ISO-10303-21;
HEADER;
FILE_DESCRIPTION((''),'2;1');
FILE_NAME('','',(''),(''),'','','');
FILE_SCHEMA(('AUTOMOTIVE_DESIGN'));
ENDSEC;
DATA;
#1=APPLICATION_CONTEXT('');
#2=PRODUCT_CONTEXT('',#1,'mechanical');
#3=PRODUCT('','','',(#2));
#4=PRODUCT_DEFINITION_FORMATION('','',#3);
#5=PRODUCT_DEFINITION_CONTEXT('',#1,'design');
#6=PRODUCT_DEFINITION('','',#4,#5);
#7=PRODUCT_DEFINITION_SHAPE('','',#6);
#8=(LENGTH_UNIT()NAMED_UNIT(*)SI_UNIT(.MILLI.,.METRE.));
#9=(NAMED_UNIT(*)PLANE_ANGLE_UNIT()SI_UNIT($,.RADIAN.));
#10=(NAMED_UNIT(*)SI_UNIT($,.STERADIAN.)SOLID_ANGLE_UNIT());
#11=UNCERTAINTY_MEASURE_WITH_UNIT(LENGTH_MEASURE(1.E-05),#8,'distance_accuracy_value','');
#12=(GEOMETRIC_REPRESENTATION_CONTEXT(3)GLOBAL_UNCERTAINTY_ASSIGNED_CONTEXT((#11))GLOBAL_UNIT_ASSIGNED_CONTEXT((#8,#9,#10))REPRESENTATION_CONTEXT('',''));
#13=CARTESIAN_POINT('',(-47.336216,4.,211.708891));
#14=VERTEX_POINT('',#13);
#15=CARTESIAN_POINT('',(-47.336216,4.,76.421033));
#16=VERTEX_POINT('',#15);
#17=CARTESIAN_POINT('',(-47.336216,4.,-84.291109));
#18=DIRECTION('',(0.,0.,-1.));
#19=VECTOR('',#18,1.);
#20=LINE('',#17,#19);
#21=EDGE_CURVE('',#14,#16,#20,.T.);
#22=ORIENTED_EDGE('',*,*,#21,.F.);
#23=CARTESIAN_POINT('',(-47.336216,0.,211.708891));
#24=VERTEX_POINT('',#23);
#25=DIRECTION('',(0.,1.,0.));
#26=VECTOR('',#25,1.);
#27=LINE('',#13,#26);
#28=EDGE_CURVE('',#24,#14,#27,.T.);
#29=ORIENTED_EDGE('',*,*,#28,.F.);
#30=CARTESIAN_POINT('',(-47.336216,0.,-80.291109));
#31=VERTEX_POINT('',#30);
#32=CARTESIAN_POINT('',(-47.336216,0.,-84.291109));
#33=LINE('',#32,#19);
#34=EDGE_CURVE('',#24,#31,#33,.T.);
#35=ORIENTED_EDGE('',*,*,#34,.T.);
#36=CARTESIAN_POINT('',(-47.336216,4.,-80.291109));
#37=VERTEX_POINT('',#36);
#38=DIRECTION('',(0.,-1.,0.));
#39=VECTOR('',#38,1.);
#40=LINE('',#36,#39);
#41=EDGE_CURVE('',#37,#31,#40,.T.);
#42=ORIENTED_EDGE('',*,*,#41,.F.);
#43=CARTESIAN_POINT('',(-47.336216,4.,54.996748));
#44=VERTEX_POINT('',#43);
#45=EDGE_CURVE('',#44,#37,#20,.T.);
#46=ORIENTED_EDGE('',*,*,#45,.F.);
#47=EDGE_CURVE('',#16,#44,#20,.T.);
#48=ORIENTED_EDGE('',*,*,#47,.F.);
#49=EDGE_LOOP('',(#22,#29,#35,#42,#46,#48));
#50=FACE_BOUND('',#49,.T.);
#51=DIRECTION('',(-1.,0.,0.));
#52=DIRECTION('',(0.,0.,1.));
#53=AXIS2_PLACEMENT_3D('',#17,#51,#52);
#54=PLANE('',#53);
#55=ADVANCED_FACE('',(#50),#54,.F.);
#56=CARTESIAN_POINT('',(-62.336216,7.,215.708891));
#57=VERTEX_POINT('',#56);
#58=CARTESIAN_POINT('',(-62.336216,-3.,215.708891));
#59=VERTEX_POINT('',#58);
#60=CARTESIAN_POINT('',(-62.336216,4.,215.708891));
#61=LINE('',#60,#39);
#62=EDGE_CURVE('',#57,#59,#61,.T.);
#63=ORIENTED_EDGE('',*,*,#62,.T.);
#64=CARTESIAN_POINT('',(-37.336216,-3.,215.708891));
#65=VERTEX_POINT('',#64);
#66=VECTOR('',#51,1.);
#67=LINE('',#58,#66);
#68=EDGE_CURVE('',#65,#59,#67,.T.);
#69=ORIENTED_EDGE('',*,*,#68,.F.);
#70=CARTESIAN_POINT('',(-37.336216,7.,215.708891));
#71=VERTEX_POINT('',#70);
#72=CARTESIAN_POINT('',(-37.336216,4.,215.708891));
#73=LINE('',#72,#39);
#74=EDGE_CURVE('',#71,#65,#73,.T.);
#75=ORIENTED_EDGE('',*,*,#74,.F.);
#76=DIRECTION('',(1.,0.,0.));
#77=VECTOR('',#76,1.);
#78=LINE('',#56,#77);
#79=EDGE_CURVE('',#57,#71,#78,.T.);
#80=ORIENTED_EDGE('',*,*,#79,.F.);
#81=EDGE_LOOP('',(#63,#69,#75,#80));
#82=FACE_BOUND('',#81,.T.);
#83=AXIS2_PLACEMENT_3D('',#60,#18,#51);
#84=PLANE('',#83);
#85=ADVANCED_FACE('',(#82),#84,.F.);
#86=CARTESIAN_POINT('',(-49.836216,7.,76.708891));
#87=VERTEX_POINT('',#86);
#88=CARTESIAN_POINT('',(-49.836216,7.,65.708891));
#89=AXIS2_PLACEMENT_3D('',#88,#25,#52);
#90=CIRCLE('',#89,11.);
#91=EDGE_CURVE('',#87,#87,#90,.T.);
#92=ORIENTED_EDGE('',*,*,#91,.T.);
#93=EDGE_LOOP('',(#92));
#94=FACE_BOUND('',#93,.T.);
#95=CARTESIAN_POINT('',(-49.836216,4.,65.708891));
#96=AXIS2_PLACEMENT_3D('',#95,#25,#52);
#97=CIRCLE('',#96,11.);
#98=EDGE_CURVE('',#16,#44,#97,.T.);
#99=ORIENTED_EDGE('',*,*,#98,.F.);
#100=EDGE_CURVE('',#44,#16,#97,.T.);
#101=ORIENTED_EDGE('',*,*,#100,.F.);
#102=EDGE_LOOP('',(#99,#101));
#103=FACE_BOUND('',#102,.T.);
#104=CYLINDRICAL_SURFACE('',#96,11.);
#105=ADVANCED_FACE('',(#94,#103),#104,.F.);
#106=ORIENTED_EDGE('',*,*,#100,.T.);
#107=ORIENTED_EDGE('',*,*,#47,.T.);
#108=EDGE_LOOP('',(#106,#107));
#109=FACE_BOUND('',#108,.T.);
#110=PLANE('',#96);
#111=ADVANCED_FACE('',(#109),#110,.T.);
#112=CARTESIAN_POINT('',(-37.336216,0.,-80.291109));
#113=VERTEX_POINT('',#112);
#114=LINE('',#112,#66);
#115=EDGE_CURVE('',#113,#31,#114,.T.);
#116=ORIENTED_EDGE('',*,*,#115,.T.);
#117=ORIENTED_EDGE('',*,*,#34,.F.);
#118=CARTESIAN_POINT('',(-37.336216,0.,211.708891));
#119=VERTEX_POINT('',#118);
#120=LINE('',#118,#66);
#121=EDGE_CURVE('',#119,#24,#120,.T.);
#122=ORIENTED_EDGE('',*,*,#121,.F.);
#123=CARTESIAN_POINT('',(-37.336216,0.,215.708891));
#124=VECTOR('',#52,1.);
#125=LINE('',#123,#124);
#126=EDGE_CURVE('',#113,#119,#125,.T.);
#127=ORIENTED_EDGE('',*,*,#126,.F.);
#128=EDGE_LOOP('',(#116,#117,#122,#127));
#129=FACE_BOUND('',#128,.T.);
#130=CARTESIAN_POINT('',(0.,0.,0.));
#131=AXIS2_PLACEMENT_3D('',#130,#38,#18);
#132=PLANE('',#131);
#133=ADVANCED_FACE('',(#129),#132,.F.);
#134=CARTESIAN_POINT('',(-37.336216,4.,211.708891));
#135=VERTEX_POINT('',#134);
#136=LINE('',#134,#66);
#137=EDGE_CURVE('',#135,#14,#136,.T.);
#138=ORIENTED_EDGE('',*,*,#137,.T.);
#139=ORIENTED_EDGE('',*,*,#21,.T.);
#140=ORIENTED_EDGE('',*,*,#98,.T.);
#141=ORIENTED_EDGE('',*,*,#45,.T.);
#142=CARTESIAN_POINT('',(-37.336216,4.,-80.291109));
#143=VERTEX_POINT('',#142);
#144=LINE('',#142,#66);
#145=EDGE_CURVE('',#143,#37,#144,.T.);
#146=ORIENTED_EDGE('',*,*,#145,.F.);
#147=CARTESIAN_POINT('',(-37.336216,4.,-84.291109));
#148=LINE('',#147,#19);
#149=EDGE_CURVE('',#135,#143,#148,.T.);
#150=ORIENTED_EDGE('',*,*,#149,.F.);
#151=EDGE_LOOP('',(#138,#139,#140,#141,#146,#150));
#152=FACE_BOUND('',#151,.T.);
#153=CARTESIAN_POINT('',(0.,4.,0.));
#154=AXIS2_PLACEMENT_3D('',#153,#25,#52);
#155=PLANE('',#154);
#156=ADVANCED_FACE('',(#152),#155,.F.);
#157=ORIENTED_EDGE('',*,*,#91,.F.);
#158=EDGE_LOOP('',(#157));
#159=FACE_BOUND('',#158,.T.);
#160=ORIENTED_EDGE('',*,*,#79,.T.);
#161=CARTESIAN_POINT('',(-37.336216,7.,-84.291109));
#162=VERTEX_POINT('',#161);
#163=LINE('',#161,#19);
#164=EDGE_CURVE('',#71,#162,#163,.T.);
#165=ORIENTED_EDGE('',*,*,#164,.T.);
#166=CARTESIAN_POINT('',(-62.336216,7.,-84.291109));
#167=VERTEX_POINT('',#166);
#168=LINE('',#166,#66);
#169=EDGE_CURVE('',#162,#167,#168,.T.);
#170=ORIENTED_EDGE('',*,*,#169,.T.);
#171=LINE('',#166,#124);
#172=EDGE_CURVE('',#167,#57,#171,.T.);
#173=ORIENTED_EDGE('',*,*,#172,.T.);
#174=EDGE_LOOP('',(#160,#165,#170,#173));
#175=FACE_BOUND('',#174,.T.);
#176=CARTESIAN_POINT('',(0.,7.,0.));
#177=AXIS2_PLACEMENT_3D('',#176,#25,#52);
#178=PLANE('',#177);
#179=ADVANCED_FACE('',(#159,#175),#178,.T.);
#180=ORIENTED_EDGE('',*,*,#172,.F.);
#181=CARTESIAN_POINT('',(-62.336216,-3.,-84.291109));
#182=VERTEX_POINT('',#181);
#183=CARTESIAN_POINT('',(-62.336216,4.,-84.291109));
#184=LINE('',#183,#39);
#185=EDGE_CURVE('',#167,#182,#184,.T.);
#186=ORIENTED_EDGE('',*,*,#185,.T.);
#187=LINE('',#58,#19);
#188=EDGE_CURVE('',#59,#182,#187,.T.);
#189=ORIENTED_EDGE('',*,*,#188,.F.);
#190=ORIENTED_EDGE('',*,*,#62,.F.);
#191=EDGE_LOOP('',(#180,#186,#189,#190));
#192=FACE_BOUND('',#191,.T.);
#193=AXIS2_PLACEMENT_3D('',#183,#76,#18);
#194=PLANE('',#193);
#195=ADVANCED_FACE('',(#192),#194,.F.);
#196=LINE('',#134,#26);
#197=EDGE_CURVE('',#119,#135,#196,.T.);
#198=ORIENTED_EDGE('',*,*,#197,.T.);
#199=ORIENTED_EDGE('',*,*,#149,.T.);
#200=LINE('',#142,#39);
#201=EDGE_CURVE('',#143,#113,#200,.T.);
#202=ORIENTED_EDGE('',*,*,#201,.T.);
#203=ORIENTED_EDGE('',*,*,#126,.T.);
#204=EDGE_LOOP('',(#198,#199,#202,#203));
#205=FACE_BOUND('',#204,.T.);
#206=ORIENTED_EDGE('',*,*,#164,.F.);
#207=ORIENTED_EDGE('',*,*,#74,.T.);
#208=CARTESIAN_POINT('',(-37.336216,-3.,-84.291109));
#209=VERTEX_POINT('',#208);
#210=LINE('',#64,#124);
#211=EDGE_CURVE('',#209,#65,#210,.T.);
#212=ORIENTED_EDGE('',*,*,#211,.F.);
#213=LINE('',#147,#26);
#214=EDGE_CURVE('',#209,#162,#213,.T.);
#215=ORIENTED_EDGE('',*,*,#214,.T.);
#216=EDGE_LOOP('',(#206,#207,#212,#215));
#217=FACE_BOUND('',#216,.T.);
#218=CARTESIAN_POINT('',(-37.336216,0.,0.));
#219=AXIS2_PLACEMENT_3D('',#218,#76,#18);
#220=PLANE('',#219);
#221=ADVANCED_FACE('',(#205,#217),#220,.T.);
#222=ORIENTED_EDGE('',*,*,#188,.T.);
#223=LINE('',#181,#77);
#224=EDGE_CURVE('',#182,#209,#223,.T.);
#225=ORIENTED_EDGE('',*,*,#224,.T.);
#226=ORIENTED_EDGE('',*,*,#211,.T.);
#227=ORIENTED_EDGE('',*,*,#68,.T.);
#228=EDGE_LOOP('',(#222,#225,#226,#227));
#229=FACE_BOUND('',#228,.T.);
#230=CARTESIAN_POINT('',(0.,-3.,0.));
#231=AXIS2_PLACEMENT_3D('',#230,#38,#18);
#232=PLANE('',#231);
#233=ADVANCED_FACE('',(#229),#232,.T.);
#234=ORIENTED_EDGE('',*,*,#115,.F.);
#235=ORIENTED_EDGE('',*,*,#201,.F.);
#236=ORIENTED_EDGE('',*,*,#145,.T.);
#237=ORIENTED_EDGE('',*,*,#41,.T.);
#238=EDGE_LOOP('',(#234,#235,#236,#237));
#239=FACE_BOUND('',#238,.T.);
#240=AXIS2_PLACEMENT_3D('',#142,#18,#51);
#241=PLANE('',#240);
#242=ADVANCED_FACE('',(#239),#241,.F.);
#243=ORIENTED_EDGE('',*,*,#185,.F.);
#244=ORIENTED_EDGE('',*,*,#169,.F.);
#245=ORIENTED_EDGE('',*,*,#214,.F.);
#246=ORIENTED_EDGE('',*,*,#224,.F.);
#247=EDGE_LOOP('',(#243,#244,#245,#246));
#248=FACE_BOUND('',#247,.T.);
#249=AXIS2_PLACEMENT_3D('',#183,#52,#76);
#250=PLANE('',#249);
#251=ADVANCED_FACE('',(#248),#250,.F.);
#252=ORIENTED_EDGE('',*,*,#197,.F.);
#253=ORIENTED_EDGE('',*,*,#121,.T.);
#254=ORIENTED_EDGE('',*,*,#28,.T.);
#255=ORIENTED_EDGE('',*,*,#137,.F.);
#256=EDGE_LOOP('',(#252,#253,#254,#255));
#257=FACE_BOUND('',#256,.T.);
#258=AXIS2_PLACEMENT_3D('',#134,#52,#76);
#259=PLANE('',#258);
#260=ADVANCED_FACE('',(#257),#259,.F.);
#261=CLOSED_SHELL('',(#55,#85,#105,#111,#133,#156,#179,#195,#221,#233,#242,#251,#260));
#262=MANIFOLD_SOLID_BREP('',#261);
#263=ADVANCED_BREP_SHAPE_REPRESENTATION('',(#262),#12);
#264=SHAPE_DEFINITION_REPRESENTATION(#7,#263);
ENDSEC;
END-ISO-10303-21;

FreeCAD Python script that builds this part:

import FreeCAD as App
import Part
import Sketcher
Q = App.Units.Quantity

doc = App.newDocument("Part")
params = doc.addObject("Spreadsheet::Sheet", "Params")
for row, (alias, value) in enumerate([
    ("sketch1_width", "15 mm"),
    ("sketch1_height", "300 mm"),
    ("pad1_length", "4 mm"),
    ("sketch2_width", "4 mm"),
    ("pad2_length", "10 mm"),
    ("sketch3_width", "25 mm"),
    ("sketch3_height", "300 mm"),
    ("pad3_length", "3 mm"),
    ("sketch4_width", "25 mm"),
    ("sketch4_height", "300 mm"),
    ("pad4_length", "3 mm"),
    ("sketch5_diameter", "22 mm"),
    ("pocket1_length", "3 mm"),
], start=1):
    params.set(f"A{row}", alias)
    params.set(f"B{row}", "=" + value)
    params.setAlias(f"B{row}", alias)

body = doc.addObject("PartDesign::Body", "Body")

sketch1 = body.newObject("Sketcher::SketchObject", "Sketch")
sketch1.AttachmentSupport = (doc.getObject("XZ_Plane"), [""])
sketch1.MapMode = "FlatFace"
sketch1.addGeometry(Part.LineSegment(App.Vector(-62, -84, 0), App.Vector(-62, 216, 0)), False)
sketch1.addGeometry(Part.LineSegment(App.Vector(-62, 216, 0), App.Vector(-47, 216, 0)), False)
sketch1.addGeometry(Part.LineSegment(App.Vector(-47, 216, 0), App.Vector(-47, -84, 0)), False)
sketch1.addGeometry(Part.LineSegment(App.Vector(-47, -84, 0), App.Vector(-62, -84, 0)), False)
sketch1.addConstraint(Sketcher.Constraint("Coincident", 0, 2, 1, 1))
sketch1.addConstraint(Sketcher.Constraint("Coincident", 1, 2, 2, 1))
sketch1.addConstraint(Sketcher.Constraint("Coincident", 2, 2, 3, 1))
sketch1.addConstraint(Sketcher.Constraint("Coincident", 3, 2, 0, 1))
sketch1.addConstraint(Sketcher.Constraint("Vertical", 0))
sketch1.addConstraint(Sketcher.Constraint("Horizontal", 1))
sketch1.addConstraint(Sketcher.Constraint("Vertical", 2))
sketch1.addConstraint(Sketcher.Constraint("Horizontal", 3))
sketch1.addConstraint(Sketcher.Constraint("DistanceX", 1, 1, 1, 2, Q("15 mm")))
sketch1.addConstraint(Sketcher.Constraint("DistanceY", 0, 1, 0, 2, Q("300 mm")))
sketch1.addConstraint(Sketcher.Constraint("DistanceY", -1, 1, 0, 2, Q("215.708891 mm")))
sketch1.addConstraint(Sketcher.Constraint("DistanceX", 0, 2, -1, 1, Q("62.336216 mm")))
sketch1.setExpression("Constraints[8]", "Params.sketch1_width")
sketch1.setExpression("Constraints[9]", "Params.sketch1_height")
pad1 = body.newObject("PartDesign::Pad", "Pad")
pad1.Profile = sketch1
pad1.setExpression("Length", "Params.pad1_length")
pad1.Reversed = True

sketch2 = body.newObject("Sketcher::SketchObject", "Sketch001")
sketch2.AttachmentSupport = (doc.getObject("YZ_Plane"), [""])
sketch2.MapMode = "FlatFace"
sketch2.AttachmentOffset = App.Placement(App.Vector(0, 0, -47.336216), App.Rotation())
sketch2.addGeometry(Part.LineSegment(App.Vector(4, 215.7, 0), App.Vector(0, 215.7, 0)), False)
sketch2.addGeometry(Part.LineSegment(App.Vector(0, 215.7, 0), App.Vector(0, 211.7, 0)), False)
sketch2.addGeometry(Part.LineSegment(App.Vector(0, 211.7, 0), App.Vector(4, 211.7, 0)), False)
sketch2.addGeometry(Part.LineSegment(App.Vector(4, 211.7, 0), App.Vector(4, 215.7, 0)), False)
sketch2.addGeometry(Part.LineSegment(App.Vector(4, -80.3, 0), App.Vector(0, -80.3, 0)), False)
sketch2.addGeometry(Part.LineSegment(App.Vector(0, -80.3, 0), App.Vector(0, -84.3, 0)), False)
sketch2.addGeometry(Part.LineSegment(App.Vector(0, -84.3, 0), App.Vector(4, -84.3, 0)), False)
sketch2.addGeometry(Part.LineSegment(App.Vector(4, -84.3, 0), App.Vector(4, -80.3, 0)), False)
sketch2.addConstraint(Sketcher.Constraint("Coincident", 0, 2, 1, 1))
sketch2.addConstraint(Sketcher.Constraint("Coincident", 1, 2, 2, 1))
sketch2.addConstraint(Sketcher.Constraint("Coincident", 2, 2, 3, 1))
sketch2.addConstraint(Sketcher.Constraint("Coincident", 3, 2, 0, 1))
sketch2.addConstraint(Sketcher.Constraint("Coincident", 4, 2, 5, 1))
sketch2.addConstraint(Sketcher.Constraint("Coincident", 5, 2, 6, 1))
sketch2.addConstraint(Sketcher.Constraint("Coincident", 6, 2, 7, 1))
sketch2.addConstraint(Sketcher.Constraint("Coincident", 7, 2, 4, 1))
sketch2.addConstraint(Sketcher.Constraint("Horizontal", 0))
sketch2.addConstraint(Sketcher.Constraint("Vertical", 1))
sketch2.addConstraint(Sketcher.Constraint("Horizontal", 2))
sketch2.addConstraint(Sketcher.Constraint("Vertical", 3))
sketch2.addConstraint(Sketcher.Constraint("Horizontal", 4))
sketch2.addConstraint(Sketcher.Constraint("Vertical", 5))
sketch2.addConstraint(Sketcher.Constraint("Horizontal", 6))
sketch2.addConstraint(Sketcher.Constraint("Vertical", 7))
sketch2.addConstraint(Sketcher.Constraint("PointOnObject", 0, 2, -2))
sketch2.addConstraint(Sketcher.Constraint("PointOnObject", 4, 2, -2))
sketch2.addConstraint(Sketcher.Constraint("Vertical", 3, 2, 6, 2))
sketch2.addConstraint(Sketcher.Constraint("Equal", 6, 1))
sketch2.addConstraint(Sketcher.Constraint("Equal", 3, 5))
sketch2.addConstraint(Sketcher.Constraint("DistanceX", 0, 2, 0, 1, Q("4 mm")))
sketch2.addConstraint(Sketcher.Constraint("DistanceY", 4, 2, 1, 2, Q("292 mm")))
sketch2.addConstraint(Sketcher.Constraint("DistanceY", -1, 1, 0, 2, Q("215.708891 mm")))
sketch2.setExpression("Constraints[21]", "Params.sketch2_width")
pad2 = body.newObject("PartDesign::Pad", "Pad001")
pad2.Profile = sketch2
pad2.setExpression("Length", "Params.pad2_length")

sketch3 = body.newObject("Sketcher::SketchObject", "Sketch002")
sketch3.AttachmentSupport = (doc.getObject("XZ_Plane"), [""])
sketch3.MapMode = "FlatFace"
sketch3.AttachmentOffset = App.Placement(App.Vector(0, 0, -4), App.Rotation())
sketch3.addGeometry(Part.LineSegment(App.Vector(-62, -84, 0), App.Vector(-62, 216, 0)), False)
sketch3.addGeometry(Part.LineSegment(App.Vector(-62, 216, 0), App.Vector(-37, 216, 0)), False)
sketch3.addGeometry(Part.LineSegment(App.Vector(-37, 216, 0), App.Vector(-37, -84, 0)), False)
sketch3.addGeometry(Part.LineSegment(App.Vector(-37, -84, 0), App.Vector(-62, -84, 0)), False)
sketch3.addConstraint(Sketcher.Constraint("Coincident", 0, 2, 1, 1))
sketch3.addConstraint(Sketcher.Constraint("Coincident", 1, 2, 2, 1))
sketch3.addConstraint(Sketcher.Constraint("Coincident", 2, 2, 3, 1))
sketch3.addConstraint(Sketcher.Constraint("Coincident", 3, 2, 0, 1))
sketch3.addConstraint(Sketcher.Constraint("Vertical", 0))
sketch3.addConstraint(Sketcher.Constraint("Horizontal", 1))
sketch3.addConstraint(Sketcher.Constraint("Vertical", 2))
sketch3.addConstraint(Sketcher.Constraint("Horizontal", 3))
sketch3.addConstraint(Sketcher.Constraint("DistanceX", 1, 1, 1, 2, Q("25 mm")))
sketch3.addConstraint(Sketcher.Constraint("DistanceY", 0, 1, 0, 2, Q("300 mm")))
sketch3.addConstraint(Sketcher.Constraint("DistanceY", -1, 1, 0, 2, Q("215.708891 mm")))
sketch3.addConstraint(Sketcher.Constraint("DistanceX", 0, 2, -1, 1, Q("62.336216 mm")))
sketch3.setExpression("Constraints[8]", "Params.sketch3_width")
sketch3.setExpression("Constraints[9]", "Params.sketch3_height")
pad3 = body.newObject("PartDesign::Pad", "Pad002")
pad3.Profile = sketch3
pad3.setExpression("Length", "Params.pad3_length")
pad3.Reversed = True

sketch4 = body.newObject("Sketcher::SketchObject", "Sketch003")
sketch4.AttachmentSupport = (doc.getObject("XZ_Plane"), [""])
sketch4.MapMode = "FlatFace"
sketch4.addGeometry(Part.LineSegment(App.Vector(-62, 216, 0), App.Vector(-62, -84, 0)), False)
sketch4.addGeometry(Part.LineSegment(App.Vector(-62, -84, 0), App.Vector(-37, -84, 0)), False)
sketch4.addGeometry(Part.LineSegment(App.Vector(-37, -84, 0), App.Vector(-37, 216, 0)), False)
sketch4.addGeometry(Part.LineSegment(App.Vector(-37, 216, 0), App.Vector(-62, 216, 0)), False)
sketch4.addConstraint(Sketcher.Constraint("Coincident", 0, 2, 1, 1))
sketch4.addConstraint(Sketcher.Constraint("Coincident", 1, 2, 2, 1))
sketch4.addConstraint(Sketcher.Constraint("Coincident", 2, 2, 3, 1))
sketch4.addConstraint(Sketcher.Constraint("Coincident", 3, 2, 0, 1))
sketch4.addConstraint(Sketcher.Constraint("Vertical", 0))
sketch4.addConstraint(Sketcher.Constraint("Horizontal", 1))
sketch4.addConstraint(Sketcher.Constraint("Vertical", 2))
sketch4.addConstraint(Sketcher.Constraint("Horizontal", 3))
sketch4.addConstraint(Sketcher.Constraint("DistanceX", 1, 1, 1, 2, Q("25 mm")))
sketch4.addConstraint(Sketcher.Constraint("DistanceY", 0, 2, 0, 1, Q("300 mm")))
sketch4.addConstraint(Sketcher.Constraint("DistanceY", 0, 2, -1, 1, Q("84.291109 mm")))
sketch4.addConstraint(Sketcher.Constraint("DistanceX", 0, 2, -1, 1, Q("62.336216 mm")))
sketch4.setExpression("Constraints[8]", "Params.sketch4_width")
sketch4.setExpression("Constraints[9]", "Params.sketch4_height")
pad4 = body.newObject("PartDesign::Pad", "Pad003")
pad4.Profile = sketch4
pad4.setExpression("Length", "Params.pad4_length")

sketch5 = body.newObject("Sketcher::SketchObject", "Sketch004")
sketch5.AttachmentSupport = (doc.getObject("XZ_Plane"), [""])
sketch5.MapMode = "FlatFace"
sketch5.AttachmentOffset = App.Placement(App.Vector(0, 0, -7), App.Rotation())
sketch5.addGeometry(Part.Circle(App.Vector(-50, 66, 0), App.Vector(0, 0, 1), 11), False)
sketch5.addConstraint(Sketcher.Constraint("Diameter", 0, Q("22 mm")))
sketch5.addConstraint(Sketcher.Constraint("DistanceY", -1, 1, 0, 3, Q("65.708891 mm")))
sketch5.addConstraint(Sketcher.Constraint("DistanceX", 0, 3, -1, 1, Q("49.836216 mm")))
sketch5.setExpression("Constraints[0]", "Params.sketch5_diameter")
pocket1 = body.newObject("PartDesign::Pocket", "Pocket")
pocket1.Profile = sketch5
pocket1.setExpression("Length", "Params.pocket1_length")
pocket1.Reversed = True

doc.recompute()
